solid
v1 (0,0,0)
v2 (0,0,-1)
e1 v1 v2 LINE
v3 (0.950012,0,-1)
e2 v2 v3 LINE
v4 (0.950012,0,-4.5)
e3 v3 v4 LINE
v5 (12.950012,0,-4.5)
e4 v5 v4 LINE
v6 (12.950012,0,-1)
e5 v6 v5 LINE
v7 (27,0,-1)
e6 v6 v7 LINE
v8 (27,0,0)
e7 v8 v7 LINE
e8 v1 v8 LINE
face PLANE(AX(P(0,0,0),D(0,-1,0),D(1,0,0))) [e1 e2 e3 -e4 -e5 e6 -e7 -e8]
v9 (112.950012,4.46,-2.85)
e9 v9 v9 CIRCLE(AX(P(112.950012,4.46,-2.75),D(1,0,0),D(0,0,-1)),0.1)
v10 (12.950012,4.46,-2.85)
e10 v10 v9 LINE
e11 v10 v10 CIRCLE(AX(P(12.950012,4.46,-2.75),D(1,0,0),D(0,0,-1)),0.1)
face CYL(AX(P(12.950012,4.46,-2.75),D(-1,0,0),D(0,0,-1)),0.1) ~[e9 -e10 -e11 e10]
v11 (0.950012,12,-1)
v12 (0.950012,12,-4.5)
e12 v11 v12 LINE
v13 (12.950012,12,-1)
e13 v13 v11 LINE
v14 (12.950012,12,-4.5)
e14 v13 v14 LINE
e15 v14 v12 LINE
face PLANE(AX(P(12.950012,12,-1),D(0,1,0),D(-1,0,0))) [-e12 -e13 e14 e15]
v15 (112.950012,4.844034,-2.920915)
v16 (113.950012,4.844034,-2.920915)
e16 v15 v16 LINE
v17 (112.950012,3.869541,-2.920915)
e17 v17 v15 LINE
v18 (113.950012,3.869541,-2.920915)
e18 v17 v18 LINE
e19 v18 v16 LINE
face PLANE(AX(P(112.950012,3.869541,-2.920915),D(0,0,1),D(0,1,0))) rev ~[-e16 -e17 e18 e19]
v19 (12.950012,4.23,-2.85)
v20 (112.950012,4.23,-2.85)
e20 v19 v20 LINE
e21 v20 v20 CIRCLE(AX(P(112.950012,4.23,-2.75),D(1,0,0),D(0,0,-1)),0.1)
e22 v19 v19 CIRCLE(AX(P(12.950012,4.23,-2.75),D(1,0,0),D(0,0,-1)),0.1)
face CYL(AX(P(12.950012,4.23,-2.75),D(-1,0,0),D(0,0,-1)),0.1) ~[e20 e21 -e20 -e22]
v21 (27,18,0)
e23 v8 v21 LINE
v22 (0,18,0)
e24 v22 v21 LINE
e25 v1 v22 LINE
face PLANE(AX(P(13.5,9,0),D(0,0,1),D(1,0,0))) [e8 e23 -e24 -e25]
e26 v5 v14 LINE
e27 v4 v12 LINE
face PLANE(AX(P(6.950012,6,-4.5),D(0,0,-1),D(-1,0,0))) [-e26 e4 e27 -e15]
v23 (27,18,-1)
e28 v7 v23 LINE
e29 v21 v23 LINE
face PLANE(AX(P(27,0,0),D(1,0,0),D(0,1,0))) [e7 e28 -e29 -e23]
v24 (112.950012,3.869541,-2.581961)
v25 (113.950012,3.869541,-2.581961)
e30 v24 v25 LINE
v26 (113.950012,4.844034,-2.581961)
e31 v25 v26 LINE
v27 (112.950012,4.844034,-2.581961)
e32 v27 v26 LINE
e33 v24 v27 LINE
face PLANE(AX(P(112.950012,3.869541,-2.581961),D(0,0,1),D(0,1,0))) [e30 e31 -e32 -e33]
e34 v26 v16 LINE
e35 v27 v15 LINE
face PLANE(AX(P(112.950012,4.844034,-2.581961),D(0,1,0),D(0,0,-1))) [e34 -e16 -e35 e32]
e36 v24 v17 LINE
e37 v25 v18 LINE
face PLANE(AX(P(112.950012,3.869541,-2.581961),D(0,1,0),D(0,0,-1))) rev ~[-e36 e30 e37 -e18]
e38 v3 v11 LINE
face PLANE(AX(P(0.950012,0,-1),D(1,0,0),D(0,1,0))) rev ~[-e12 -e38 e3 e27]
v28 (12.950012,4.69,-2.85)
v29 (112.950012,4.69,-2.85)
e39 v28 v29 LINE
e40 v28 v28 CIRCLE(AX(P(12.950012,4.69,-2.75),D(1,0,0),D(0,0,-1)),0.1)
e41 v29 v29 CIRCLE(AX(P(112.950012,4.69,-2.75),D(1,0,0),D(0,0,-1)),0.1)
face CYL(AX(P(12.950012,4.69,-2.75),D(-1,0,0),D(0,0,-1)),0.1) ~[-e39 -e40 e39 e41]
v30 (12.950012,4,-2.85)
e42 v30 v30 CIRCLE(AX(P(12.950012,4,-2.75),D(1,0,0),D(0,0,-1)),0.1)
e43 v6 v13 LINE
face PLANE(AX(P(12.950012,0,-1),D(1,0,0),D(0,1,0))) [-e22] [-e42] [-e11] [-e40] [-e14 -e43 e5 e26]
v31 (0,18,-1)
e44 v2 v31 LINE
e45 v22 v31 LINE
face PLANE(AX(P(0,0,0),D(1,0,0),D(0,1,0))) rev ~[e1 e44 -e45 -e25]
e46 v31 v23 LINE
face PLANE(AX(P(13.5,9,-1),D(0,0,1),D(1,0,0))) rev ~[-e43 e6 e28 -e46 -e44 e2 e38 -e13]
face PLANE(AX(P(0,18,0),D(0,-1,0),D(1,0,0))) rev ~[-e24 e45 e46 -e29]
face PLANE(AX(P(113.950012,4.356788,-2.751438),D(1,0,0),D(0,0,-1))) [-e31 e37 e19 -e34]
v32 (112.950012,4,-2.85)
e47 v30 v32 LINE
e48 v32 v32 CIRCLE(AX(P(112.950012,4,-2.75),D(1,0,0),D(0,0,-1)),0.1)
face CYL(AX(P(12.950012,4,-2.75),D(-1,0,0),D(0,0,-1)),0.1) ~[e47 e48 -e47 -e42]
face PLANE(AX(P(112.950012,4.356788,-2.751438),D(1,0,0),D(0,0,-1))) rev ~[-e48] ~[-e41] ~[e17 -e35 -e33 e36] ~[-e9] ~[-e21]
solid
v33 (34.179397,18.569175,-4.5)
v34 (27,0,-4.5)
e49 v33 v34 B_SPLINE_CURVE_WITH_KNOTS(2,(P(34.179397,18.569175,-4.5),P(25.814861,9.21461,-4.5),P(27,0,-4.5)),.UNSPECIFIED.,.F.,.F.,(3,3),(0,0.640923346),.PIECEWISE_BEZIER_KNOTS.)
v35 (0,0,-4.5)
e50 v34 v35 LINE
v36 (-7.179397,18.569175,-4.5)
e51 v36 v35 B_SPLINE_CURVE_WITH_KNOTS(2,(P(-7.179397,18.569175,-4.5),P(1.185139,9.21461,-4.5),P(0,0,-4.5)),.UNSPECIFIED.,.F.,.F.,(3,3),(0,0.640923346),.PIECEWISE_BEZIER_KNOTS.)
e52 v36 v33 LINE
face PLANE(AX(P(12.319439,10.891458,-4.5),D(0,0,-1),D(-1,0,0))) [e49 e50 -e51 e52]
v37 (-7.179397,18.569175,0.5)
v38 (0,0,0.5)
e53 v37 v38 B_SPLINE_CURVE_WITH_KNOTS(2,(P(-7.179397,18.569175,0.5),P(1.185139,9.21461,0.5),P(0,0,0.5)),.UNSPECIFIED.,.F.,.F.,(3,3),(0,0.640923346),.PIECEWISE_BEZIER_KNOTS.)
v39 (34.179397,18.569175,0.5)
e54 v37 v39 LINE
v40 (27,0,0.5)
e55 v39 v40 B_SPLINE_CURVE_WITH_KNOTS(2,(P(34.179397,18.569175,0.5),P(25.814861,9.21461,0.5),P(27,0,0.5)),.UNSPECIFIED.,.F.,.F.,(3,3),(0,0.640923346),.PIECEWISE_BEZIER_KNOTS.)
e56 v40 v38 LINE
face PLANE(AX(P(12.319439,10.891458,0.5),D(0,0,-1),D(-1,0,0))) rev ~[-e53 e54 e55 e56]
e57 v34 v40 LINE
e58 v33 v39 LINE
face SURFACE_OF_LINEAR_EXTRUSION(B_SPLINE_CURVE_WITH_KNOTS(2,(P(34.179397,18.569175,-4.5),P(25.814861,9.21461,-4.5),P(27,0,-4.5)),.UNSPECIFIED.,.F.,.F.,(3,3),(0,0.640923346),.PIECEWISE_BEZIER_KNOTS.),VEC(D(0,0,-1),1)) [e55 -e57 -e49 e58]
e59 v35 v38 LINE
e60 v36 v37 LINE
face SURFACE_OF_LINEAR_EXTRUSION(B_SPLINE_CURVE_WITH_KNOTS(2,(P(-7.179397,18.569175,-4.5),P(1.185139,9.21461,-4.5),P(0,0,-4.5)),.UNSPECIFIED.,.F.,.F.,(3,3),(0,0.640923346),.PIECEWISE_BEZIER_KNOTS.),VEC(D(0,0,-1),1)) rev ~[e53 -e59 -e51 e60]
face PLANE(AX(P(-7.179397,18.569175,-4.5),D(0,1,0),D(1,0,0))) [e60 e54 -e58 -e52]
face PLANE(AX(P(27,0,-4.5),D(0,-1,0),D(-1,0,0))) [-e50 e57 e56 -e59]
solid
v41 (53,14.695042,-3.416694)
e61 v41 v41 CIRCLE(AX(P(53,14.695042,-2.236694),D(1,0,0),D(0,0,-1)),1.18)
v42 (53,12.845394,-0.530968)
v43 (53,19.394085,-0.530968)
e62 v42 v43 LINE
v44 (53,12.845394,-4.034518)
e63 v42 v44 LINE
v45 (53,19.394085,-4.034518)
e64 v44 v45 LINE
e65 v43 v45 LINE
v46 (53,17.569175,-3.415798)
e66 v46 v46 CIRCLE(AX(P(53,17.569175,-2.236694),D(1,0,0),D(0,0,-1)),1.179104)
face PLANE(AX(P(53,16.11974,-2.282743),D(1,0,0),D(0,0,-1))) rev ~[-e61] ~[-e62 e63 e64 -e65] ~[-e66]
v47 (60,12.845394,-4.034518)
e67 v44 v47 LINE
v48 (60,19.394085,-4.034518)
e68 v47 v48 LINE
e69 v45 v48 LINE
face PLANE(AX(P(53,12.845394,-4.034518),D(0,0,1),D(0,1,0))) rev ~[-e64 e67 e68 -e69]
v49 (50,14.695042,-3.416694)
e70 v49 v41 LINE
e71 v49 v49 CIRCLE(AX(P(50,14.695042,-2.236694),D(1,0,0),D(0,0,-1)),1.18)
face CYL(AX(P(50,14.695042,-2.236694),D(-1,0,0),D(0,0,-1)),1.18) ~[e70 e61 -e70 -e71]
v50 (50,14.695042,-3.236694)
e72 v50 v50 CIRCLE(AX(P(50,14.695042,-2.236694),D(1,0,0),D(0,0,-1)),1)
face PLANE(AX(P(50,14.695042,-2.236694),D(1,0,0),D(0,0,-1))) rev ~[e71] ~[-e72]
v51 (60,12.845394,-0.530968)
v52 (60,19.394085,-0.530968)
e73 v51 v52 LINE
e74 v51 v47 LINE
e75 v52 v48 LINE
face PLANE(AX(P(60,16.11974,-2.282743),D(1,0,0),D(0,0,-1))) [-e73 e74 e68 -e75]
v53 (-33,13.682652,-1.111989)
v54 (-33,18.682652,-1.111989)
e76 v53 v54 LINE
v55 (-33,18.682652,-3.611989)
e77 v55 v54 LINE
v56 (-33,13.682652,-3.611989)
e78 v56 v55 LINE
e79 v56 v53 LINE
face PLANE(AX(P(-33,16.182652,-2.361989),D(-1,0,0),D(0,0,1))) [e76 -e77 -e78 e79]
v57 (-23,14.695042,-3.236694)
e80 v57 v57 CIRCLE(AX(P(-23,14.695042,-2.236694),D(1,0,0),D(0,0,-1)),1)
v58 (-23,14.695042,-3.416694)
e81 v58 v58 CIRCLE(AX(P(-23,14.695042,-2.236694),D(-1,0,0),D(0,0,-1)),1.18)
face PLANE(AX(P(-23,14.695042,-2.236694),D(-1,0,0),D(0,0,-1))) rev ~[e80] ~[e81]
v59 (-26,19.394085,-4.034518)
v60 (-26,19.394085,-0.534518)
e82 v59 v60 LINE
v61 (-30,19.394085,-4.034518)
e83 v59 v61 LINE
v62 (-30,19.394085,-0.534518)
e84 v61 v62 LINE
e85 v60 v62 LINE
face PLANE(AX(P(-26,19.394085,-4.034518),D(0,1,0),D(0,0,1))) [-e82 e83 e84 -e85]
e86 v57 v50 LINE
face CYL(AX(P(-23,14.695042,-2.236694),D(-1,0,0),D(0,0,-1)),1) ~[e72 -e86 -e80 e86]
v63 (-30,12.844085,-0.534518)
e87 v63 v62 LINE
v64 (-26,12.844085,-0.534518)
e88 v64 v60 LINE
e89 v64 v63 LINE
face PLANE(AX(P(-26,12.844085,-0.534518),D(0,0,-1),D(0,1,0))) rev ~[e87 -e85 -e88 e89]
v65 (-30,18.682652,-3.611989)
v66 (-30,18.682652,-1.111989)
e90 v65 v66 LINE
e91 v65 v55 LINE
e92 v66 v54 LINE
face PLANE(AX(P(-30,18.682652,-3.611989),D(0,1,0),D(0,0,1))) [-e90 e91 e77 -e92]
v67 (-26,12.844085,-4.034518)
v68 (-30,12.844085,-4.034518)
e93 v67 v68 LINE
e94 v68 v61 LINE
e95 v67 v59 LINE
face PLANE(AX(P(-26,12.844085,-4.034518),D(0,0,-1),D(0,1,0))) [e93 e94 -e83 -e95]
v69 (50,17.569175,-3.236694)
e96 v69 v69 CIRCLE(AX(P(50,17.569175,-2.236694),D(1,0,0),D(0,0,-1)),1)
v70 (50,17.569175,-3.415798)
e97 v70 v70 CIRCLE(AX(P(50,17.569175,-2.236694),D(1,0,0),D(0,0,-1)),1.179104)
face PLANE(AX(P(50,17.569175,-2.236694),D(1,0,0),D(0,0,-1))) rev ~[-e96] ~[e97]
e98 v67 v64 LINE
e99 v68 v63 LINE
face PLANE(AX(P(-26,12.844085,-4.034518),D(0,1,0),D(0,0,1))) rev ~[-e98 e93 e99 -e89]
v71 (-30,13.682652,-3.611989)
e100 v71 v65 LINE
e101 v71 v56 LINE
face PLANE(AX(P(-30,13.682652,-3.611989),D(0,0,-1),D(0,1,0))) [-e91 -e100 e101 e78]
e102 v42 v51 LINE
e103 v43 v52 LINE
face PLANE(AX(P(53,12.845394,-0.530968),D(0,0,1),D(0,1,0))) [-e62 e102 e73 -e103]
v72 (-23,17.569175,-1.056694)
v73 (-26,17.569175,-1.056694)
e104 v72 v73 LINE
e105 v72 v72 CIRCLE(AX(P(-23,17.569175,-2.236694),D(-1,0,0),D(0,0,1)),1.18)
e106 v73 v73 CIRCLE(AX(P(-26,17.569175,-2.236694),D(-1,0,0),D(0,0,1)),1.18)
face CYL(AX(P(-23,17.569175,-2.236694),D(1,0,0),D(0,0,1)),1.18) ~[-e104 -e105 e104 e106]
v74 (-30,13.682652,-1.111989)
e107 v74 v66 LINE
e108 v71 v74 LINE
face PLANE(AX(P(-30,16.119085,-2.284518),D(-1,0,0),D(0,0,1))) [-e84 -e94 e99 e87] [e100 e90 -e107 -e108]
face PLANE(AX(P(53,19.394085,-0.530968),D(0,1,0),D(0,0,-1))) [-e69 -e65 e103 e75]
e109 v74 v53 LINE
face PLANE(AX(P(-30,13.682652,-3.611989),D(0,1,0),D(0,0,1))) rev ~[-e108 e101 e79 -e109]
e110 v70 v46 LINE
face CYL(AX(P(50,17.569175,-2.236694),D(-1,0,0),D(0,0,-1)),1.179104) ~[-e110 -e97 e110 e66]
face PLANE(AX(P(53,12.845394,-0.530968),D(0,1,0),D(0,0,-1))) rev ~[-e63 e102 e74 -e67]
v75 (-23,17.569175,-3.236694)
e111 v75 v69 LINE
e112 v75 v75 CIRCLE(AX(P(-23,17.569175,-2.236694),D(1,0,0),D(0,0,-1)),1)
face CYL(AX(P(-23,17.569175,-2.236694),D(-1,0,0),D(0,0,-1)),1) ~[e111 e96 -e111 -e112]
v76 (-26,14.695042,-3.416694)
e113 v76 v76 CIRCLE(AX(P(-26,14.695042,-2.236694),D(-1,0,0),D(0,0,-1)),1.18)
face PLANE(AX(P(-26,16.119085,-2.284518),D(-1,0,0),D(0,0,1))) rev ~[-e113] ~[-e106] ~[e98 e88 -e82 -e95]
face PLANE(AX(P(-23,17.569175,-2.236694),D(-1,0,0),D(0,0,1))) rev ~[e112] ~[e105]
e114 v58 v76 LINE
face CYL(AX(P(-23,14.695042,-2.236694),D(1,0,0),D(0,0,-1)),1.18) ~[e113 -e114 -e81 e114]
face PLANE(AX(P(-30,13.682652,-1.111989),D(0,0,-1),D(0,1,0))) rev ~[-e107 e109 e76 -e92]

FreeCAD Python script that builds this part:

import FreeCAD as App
import Part
import Sketcher

V = App.Vector
Q = App.Units.Quantity


def add_polygon(sketch, points):
    """Adds a closed chain of lines whose ends are joined by coincident constraints."""
    first, n = sketch.GeometryCount, len(points)
    for a, b in zip(points, points[1:] + points[:1]):
        sketch.addGeometry(Part.LineSegment(App.Vector(*a, 0), App.Vector(*b, 0)), False)
    for i in range(n):
        sketch.addConstraint(Sketcher.Constraint("Coincident", first + i, 2, first + (i + 1) % n, 1))

doc = App.newDocument("Part")
body = doc.addObject("PartDesign::Body", "Body")

# Sketch on XY plane
sketch1 = body.newObject("Sketcher::SketchObject", "Sketch")
sketch1.AttachmentSupport = (doc.getObject("XY_Plane"), [""])
sketch1.MapMode = "FlatFace"
add_polygon(sketch1, [(0, 18), (0, 0), (27, 0), (27, 18)])  # lines 0-3
sketch1.addConstraint(Sketcher.Constraint("Vertical", 0))
sketch1.addConstraint(Sketcher.Constraint("Horizontal", 1))
sketch1.addConstraint(Sketcher.Constraint("Vertical", 2))
sketch1.addConstraint(Sketcher.Constraint("Horizontal", 3))
sketch1.addConstraint(Sketcher.Constraint("Coincident", 0, 2, -1, 1))
sketch1.addConstraint(Sketcher.Constraint("DistanceX", 1, 1, 1, 2, Q("27 mm")))
sketch1.addConstraint(Sketcher.Constraint("DistanceY", 0, 2, 0, 1, Q("18 mm")))
pad1 = body.newObject("PartDesign::Pad", "Pad")
pad1.Profile = sketch1
pad1.Length = 1
pad1.Reversed = True

# Sketch on XY plane
sketch2 = body.newObject("Sketcher::SketchObject", "Sketch001")
sketch2.AttachmentSupport = (doc.getObject("XY_Plane"), [""])
sketch2.MapMode = "FlatFace"
sketch2.AttachmentOffset = App.Placement(V(0, 0, -1), App.Rotation())
add_polygon(sketch2, [(13, 12), (13, 0), (1, 0), (1, 12)])  # lines 0-3
sketch2.addConstraint(Sketcher.Constraint("Vertical", 0))
sketch2.addConstraint(Sketcher.Constraint("Horizontal", 1))
sketch2.addConstraint(Sketcher.Constraint("Vertical", 2))
sketch2.addConstraint(Sketcher.Constraint("Horizontal", 3))
sketch2.addConstraint(Sketcher.Constraint("PointOnObject", 0, 2, -1))
sketch2.addConstraint(Sketcher.Constraint("Equal", 3, 0))
sketch2.addConstraint(Sketcher.Constraint("DistanceX", 1, 2, 1, 1, Q("12 mm")))
sketch2.addConstraint(Sketcher.Constraint("DistanceX", -1, 1, 0, 2, Q("12.950012 mm")))
pad2 = body.newObject("PartDesign::Pad", "Pad001")
pad2.Profile = sketch2
pad2.Length = 3.5
pad2.Reversed = True

# Sketch on YZ plane
sketch3 = body.newObject("Sketcher::SketchObject", "Sketch002")
sketch3.AttachmentSupport = (doc.getObject("YZ_Plane"), [""])
sketch3.MapMode = "FlatFace"
sketch3.AttachmentOffset = App.Placement(V(0, 0, 12.950012), App.Rotation())
sketch3.addGeometry(Part.Circle(V(4.69, -2.75, 0), V(0, 0, 1), 0.1), False)
sketch3.addGeometry(Part.Circle(V(4.46, -2.75, 0), V(0, 0, 1), 0.1), False)
sketch3.addGeometry(Part.Circle(V(4.23, -2.75, 0), V(0, 0, 1), 0.1), False)
sketch3.addGeometry(Part.Circle(V(4, -2.75, 0), V(0, 0, 1), 0.1), False)
sketch3.addConstraint(Sketcher.Constraint("Equal", 0, 1))
sketch3.addConstraint(Sketcher.Constraint("Equal", 1, 2))
sketch3.addConstraint(Sketcher.Constraint("Equal", 2, 3))
sketch3.addConstraint(Sketcher.Constraint("Horizontal", 0, 3, 1, 3))
sketch3.addConstraint(Sketcher.Constraint("Horizontal", 1, 3, 2, 3))
sketch3.addConstraint(Sketcher.Constraint("Horizontal", 2, 3, 3, 3))
sketch3.addConstraint(Sketcher.Constraint("Diameter", 0, Q("0.2 mm")))
sketch3.addConstraint(Sketcher.Constraint("DistanceX", -1, 1, 3, 3, Q("4 mm")))
sketch3.addConstraint(Sketcher.Constraint("DistanceX", -1, 1, 0, 3, Q("4.69 mm")))
sketch3.addConstraint(Sketcher.Constraint("DistanceY", 0, 3, -1, 1, Q("2.75 mm")))
sketch3.addConstraint(Sketcher.Constraint("DistanceX", -1, 1, 1, 3, Q("4.46 mm")))
sketch3.addConstraint(Sketcher.Constraint("DistanceX", -1, 1, 2, 3, Q("4.23 mm")))
pad3 = body.newObject("PartDesign::Pad", "Pad002")
pad3.Profile = sketch3
pad3.Length = 100

# Sketch on YZ plane
sketch4 = body.newObject("Sketcher::SketchObject", "Sketch003")
sketch4.AttachmentSupport = (doc.getObject("YZ_Plane"), [""])
sketch4.MapMode = "FlatFace"
sketch4.AttachmentOffset = App.Placement(V(0, 0, 112.950012), App.Rotation())
add_polygon(sketch4, [(4.84, -2.58), (3.87, -2.58), (3.87, -2.92), (4.84, -2.92)])  # lines 0-3
sketch4.addConstraint(Sketcher.Constraint("Horizontal", 0))
sketch4.addConstraint(Sketcher.Constraint("Vertical", 1))
sketch4.addConstraint(Sketcher.Constraint("Horizontal", 2))
sketch4.addConstraint(Sketcher.Constraint("Vertical", 3))
sketch4.addConstraint(Sketcher.Constraint("DistanceX", 0, 2, 0, 1, Q("0.974493 mm")))
sketch4.addConstraint(Sketcher.Constraint("DistanceY", 1, 2, 1, 1, Q("0.338954 mm")))
sketch4.addConstraint(Sketcher.Constraint("DistanceX", -1, 1, 0, 2, Q("3.869541 mm")))
sketch4.addConstraint(Sketcher.Constraint("DistanceY", 0, 2, -1, 1, Q("2.581961 mm")))
pad4 = body.newObject("PartDesign::Pad", "Pad003")
pad4.Profile = sketch4
pad4.Length = 1
body2 = doc.addObject("PartDesign::Body", "Body001")

# Sketch on YZ plane
sketch5 = body2.newObject("Sketcher::SketchObject", "Sketch004")
sketch5.AttachmentSupport = (doc.getObject("YZ_Plane001"), [""])
sketch5.MapMode = "FlatFace"
sketch5.AttachmentOffset = App.Placement(V(0, 0, 27), App.Rotation())
sketch5.addGeometry(Part.Circle(V(17.6, -2.2, 0), V(0, 0, 1), 1), False)
sketch5.addConstraint(Sketcher.Constraint("Diameter", 0, Q("2 mm")))
sketch5.addConstraint(Sketcher.Constraint("DistanceX", -1, 1, 0, 3, Q("17.569175 mm")))
sketch5.addConstraint(Sketcher.Constraint("DistanceY", 0, 3, -1, 1, Q("2.236694 mm")))
pad5 = body2.newObject("PartDesign::Pad", "Pad004")
pad5.Profile = sketch5
pad5.Type = "TwoLengths"
pad5.Length = 23
pad5.Length2 = 50
body3 = doc.addObject("PartDesign::Body", "Body002")

# Sketch on YZ plane
sketch6 = body3.newObject("Sketcher::SketchObject", "Sketch005")
sketch6.AttachmentSupport = (doc.getObject("YZ_Plane002"), [""])
sketch6.MapMode = "FlatFace"
sketch6.AttachmentOffset = App.Placement(V(0, 0, 27), App.Rotation())
sketch6.addGeometry(Part.Circle(V(14.7, -2.2, 0), V(0, 0, 1), 1), False)
sketch6.addConstraint(Sketcher.Constraint("Diameter", 0, Q("2 mm")))
sketch6.addConstraint(Sketcher.Constraint("DistanceX", -1, 1, 0, 3, Q("14.695042 mm")))
sketch6.addConstraint(Sketcher.Constraint("DistanceY", 0, 3, -1, 1, Q("2.236694 mm")))
pad6 = body3.newObject("PartDesign::Pad", "Pad005")
pad6.Profile = sketch6
pad6.Type = "TwoLengths"
pad6.Length = 23
pad6.Length2 = 50
body2.AllowCompound = True
doc.recompute()

boolean = body2.newObject("PartDesign::Boolean", "Boolean")
boolean.Type = "Fuse"
boolean.addObjects([body3])

# Sketch on YZ plane
sketch7 = body2.newObject("Sketcher::SketchObject", "Sketch006")
sketch7.AttachmentSupport = (doc.getObject("YZ_Plane001"), [""])
sketch7.MapMode = "FlatFace"
sketch7.AttachmentOffset = App.Placement(V(0, 0, 50), App.Rotation())
sketch7.addGeometry(Part.Circle(V(17.6, -2.2, 0), V(0, 0, 1), 1.2), False)
sketch7.addGeometry(Part.Circle(V(14.7, -2.2, 0), V(0, 0, 1), 1.2), False)
sketch7.addConstraint(Sketcher.Constraint("Horizontal", 0, 3, 1, 3))
sketch7.addConstraint(Sketcher.Constraint("Diameter", 1, Q("2.36 mm")))
sketch7.addConstraint(Sketcher.Constraint("Diameter", 0, Q("2.358208 mm")))
sketch7.addConstraint(Sketcher.Constraint("DistanceX", -1, 1, 1, 3, Q("14.695042 mm")))
sketch7.addConstraint(Sketcher.Constraint("DistanceX", -1, 1, 0, 3, Q("17.569175 mm")))
sketch7.addConstraint(Sketcher.Constraint("DistanceY", 0, 3, -1, 1, Q("2.236694 mm")))
pad7 = body2.newObject("PartDesign::Pad", "Pad006")
pad7.Profile = sketch7
pad7.Length = 3

# Sketch on YZ plane
sketch8 = body2.newObject("Sketcher::SketchObject", "Sketch007")
sketch8.AttachmentSupport = (doc.getObject("YZ_Plane001"), [""])
sketch8.MapMode = "FlatFace"
sketch8.AttachmentOffset = App.Placement(V(0, 0, -23), App.Rotation())
sketch8.addGeometry(Part.Circle(V(17.6, -2.2, 0), V(0, 0, 1), 1.2), False)
sketch8.addGeometry(Part.Circle(V(14.7, -2.2, 0), V(0, 0, 1), 1.2), False)
sketch8.addConstraint(Sketcher.Constraint("Equal", 0, 1))
sketch8.addConstraint(Sketcher.Constraint("Horizontal", 0, 3, 1, 3))
sketch8.addConstraint(Sketcher.Constraint("Diameter", 0, Q("2.36 mm")))
sketch8.addConstraint(Sketcher.Constraint("DistanceX", -1, 1, 1, 3, Q("14.695042 mm")))
sketch8.addConstraint(Sketcher.Constraint("DistanceX", -1, 1, 0, 3, Q("17.569175 mm")))
sketch8.addConstraint(Sketcher.Constraint("DistanceY", 0, 3, -1, 1, Q("2.236694 mm")))
pad8 = body2.newObject("PartDesign::Pad", "Pad007")
pad8.Profile = sketch8
pad8.Length = 3
pad8.Reversed = True

# Sketch on YZ plane
sketch9 = body2.newObject("Sketcher::SketchObject", "Sketch008")
sketch9.AttachmentSupport = (doc.getObject("YZ_Plane001"), [""])
sketch9.MapMode = "FlatFace"
sketch9.AttachmentOffset = App.Placement(V(0, 0, 53), App.Rotation())
add_polygon(sketch9, [(19.4, -0.5), (12.8, -0.5), (12.8, -4), (19.4, -4)])  # lines 0-3
sketch9.addConstraint(Sketcher.Constraint("Horizontal", 0))
sketch9.addConstraint(Sketcher.Constraint("Vertical", 1))
sketch9.addConstraint(Sketcher.Constraint("Horizontal", 2))
sketch9.addConstraint(Sketcher.Constraint("Vertical", 3))
sketch9.addConstraint(Sketcher.Constraint("DistanceX", 0, 2, 0, 1, Q("6.548692 mm")))
sketch9.addConstraint(Sketcher.Constraint("DistanceY", 1, 2, 1, 1, Q("3.50355 mm")))
sketch9.addConstraint(Sketcher.Constraint("DistanceY", 0, 2, -1, 1, Q("0.530968 mm")))
sketch9.addConstraint(Sketcher.Constraint("DistanceX", -1, 1, 0, 2, Q("12.845394 mm")))
pad9 = body2.newObject("PartDesign::Pad", "Pad008")
pad9.Profile = sketch9
pad9.Length = 7

# Sketch on YZ plane
sketch10 = body2.newObject("Sketcher::SketchObject", "Sketch009")
sketch10.AttachmentSupport = (doc.getObject("YZ_Plane001"), [""])
sketch10.MapMode = "FlatFace"
sketch10.AttachmentOffset = App.Placement(V(0, 0, -26), App.Rotation())
add_polygon(sketch10, [(19.4, -4), (12.8, -4), (12.8, -0.5), (19.4, -0.5)])  # lines 0-3
sketch10.addConstraint(Sketcher.Constraint("Horizontal", 0))
sketch10.addConstraint(Sketcher.Constraint("Vertical", 1))
sketch10.addConstraint(Sketcher.Constraint("Horizontal", 2))
sketch10.addConstraint(Sketcher.Constraint("Vertical", 3))
sketch10.addConstraint(Sketcher.Constraint("DistanceY", 1, 1, 1, 2, Q("3.5 mm")))
sketch10.addConstraint(Sketcher.Constraint("DistanceX", 0, 2, 0, 1, Q("6.55 mm")))
sketch10.addConstraint(Sketcher.Constraint("DistanceY", 0, 2, -1, 1, Q("4.034518 mm")))
sketch10.addConstraint(Sketcher.Constraint("DistanceX", -1, 1, 0, 2, Q("12.844085 mm")))
pad10 = body2.newObject("PartDesign::Pad", "Pad009")
pad10.Profile = sketch10
pad10.Length = 4
pad10.Reversed = True

# Sketch on YZ plane
sketch11 = body2.newObject("Sketcher::SketchObject", "Sketch010")
sketch11.AttachmentSupport = (doc.getObject("YZ_Plane001"), [""])
sketch11.MapMode = "FlatFace"
sketch11.AttachmentOffset = App.Placement(V(0, 0, -30), App.Rotation())
add_polygon(sketch11, [(18.7, -3.6), (13.7, -3.6), (13.7, -1.1), (18.7, -1.1)])  # lines 0-3
sketch11.addConstraint(Sketcher.Constraint("Horizontal", 0))
sketch11.addConstraint(Sketcher.Constraint("Vertical", 1))
sketch11.addConstraint(Sketcher.Constraint("Horizontal", 2))
sketch11.addConstraint(Sketcher.Constraint("Vertical", 3))
sketch11.addConstraint(Sketcher.Constraint("DistanceX", 0, 2, 0, 1, Q("5 mm")))
sketch11.addConstraint(Sketcher.Constraint("DistanceY", 1, 1, 1, 2, Q("2.5 mm")))
sketch11.addConstraint(Sketcher.Constraint("DistanceY", 0, 2, -1, 1, Q("3.611989 mm")))
sketch11.addConstraint(Sketcher.Constraint("DistanceX", -1, 1, 0, 2, Q("13.682652 mm")))
pad11 = body2.newObject("PartDesign::Pad", "Pad010")
pad11.Profile = sketch11
pad11.Length = 3
pad11.Reversed = True
body4 = doc.addObject("PartDesign::Body", "Body003")

# Sketch on XY plane
sketch12 = body4.newObject("Sketcher::SketchObject", "Sketch011")
sketch12.AttachmentSupport = (doc.getObject("XY_Plane003"), [""])
sketch12.MapMode = "FlatFace"
sketch12.AttachmentOffset = App.Placement(V(0, 0, -4.5), App.Rotation())
sketch12.addGeometry(Part.BSplineCurve([V(34.179397, 18.569175, 0), V(25.814861, 9.21461, 0), V(27, 0, 0)], [3, 3], [0, 0.640923346], False, 2, [1, 1, 1], False), False)
sketch12.addGeometry(Part.LineSegment(V(27, 0, 0), V(0, 0, 0)), False)
sketch12.addGeometry(Part.BSplineCurve([V(-7.179397, 18.569175, 0), V(1.185139, 9.21461, 0), V(0, 0, 0)], [3, 3], [0, 0.640923346], False, 2, [1, 1, 1], False), False)
sketch12.addGeometry(Part.LineSegment(V(-7.179397, 18.569175, 0), V(34.179397, 18.569175, 0)), False)
sketch12.addConstraint(Sketcher.Constraint("Block", 0))
sketch12.addConstraint(Sketcher.Constraint("Block", 2))
sketch12.addConstraint(Sketcher.Constraint("Coincident", 0, 2, 1, 1))
sketch12.addConstraint(Sketcher.Constraint("Coincident", 1, 2, 2, 2))
sketch12.addConstraint(Sketcher.Constraint("Coincident", 2, 1, 3, 1))
sketch12.addConstraint(Sketcher.Constraint("Coincident", 3, 2, 0, 1))
pad12 = body4.newObject("PartDesign::Pad", "Pad011")
pad12.Profile = sketch12
pad12.Length = 5

doc.recompute()
